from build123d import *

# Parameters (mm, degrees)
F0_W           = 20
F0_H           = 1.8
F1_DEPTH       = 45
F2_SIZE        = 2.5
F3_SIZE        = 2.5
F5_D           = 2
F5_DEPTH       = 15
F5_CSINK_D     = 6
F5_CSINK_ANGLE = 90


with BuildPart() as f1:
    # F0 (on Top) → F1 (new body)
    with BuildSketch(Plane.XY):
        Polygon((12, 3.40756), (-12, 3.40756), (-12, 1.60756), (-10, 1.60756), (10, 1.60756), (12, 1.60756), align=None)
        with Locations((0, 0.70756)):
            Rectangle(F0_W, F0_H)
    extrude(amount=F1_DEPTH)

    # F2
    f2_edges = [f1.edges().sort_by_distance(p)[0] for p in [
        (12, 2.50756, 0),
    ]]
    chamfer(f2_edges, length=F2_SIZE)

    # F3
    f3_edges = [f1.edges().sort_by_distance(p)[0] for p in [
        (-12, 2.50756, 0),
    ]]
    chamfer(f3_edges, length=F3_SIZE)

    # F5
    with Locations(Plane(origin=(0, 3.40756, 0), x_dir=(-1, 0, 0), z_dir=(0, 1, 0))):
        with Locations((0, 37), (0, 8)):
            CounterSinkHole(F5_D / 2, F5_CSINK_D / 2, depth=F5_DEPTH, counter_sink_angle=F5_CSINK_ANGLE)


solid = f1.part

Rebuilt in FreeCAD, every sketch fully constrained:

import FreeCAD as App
import Part
import Sketcher
from FreeCAD import Vector
Q = App.Units.Quantity


def edges_at(feature, points):
    """Names of the edges that pass closest to the given points."""
    edges = feature.Shape.Edges
    near = lambda p: min(range(len(edges)), key=lambda i: edges[i].distToShape(Part.Vertex(*p))[0])
    return sorted({f"Edge{near(p) + 1}" for p in points})


def add_polygon(sketch, points):
    """Adds a closed chain of lines whose ends are joined by coincident constraints."""
    first, n = sketch.GeometryCount, len(points)
    for a, b in zip(points, points[1:] + points[:1]):
        sketch.addGeometry(Part.LineSegment(App.Vector(*a, 0), App.Vector(*b, 0)), False)
    for i in range(n):
        sketch.addConstraint(Sketcher.Constraint("Coincident", first + i, 2, first + (i + 1) % n, 1))

doc = App.newDocument("Part")
body = doc.addObject("PartDesign::Body", "Body")

# Sketch on XY plane
sketch1 = body.newObject("Sketcher::SketchObject", "Sketch")
sketch1.AttachmentSupport = (doc.getObject("XY_Plane"), [""])
sketch1.MapMode = "FlatFace"
add_polygon(sketch1, [(12, 3.40756), (-12, 3.40756), (-12, 1.60756), (-10, 1.60756), (-10, -0.19244), (10, -0.19244), (10, 1.60756), (12, 1.60756)])  # lines 0-7
sketch1.addConstraint([
    Sketcher.Constraint("Horizontal", 0),
    Sketcher.Constraint("Vertical", 1),
    Sketcher.Constraint("Horizontal", 2),
    Sketcher.Constraint("Vertical", 3),
    Sketcher.Constraint("Horizontal", 4),
    Sketcher.Constraint("Vertical", 5),
    Sketcher.Constraint("Horizontal", 6),
    Sketcher.Constraint("Vertical", 7),
    Sketcher.Constraint("Symmetric", 2, 2, 5, 2, -2),
    Sketcher.Constraint("Equal", 2, 6),
    Sketcher.Constraint("Equal", 1, 3),
    Sketcher.Constraint("DistanceX", 0, 2, 0, 1, Q("24 mm")),
    Sketcher.Constraint("DistanceX", 2, 1, 2, 2, Q("2 mm")),
    Sketcher.Constraint("DistanceY", 1, 2, 1, 1, Q("1.8 mm")),
    Sketcher.Constraint("DistanceY", -1, 1, 0, 2, Q("3.40756 mm")),
])
pad1 = body.newObject("PartDesign::Pad", "Pad")
pad1.Profile = sketch1
pad1.Length = 45
doc.recompute()

chamfer = body.newObject("PartDesign::Chamfer", "Chamfer")
chamfer.Base = (pad1, edges_at(pad1, [(12, 2.508, 0)]))
chamfer.Size = 2.5
doc.recompute()

chamfer2 = body.newObject("PartDesign::Chamfer", "Chamfer001")
chamfer2.Base = (chamfer, edges_at(chamfer, [(-12, 2.508, 0)]))
chamfer2.Size = 2.5

# Sketch on XZ plane
sketch2 = body.newObject("Sketcher::SketchObject", "Sketch001")
sketch2.AttachmentSupport = (doc.getObject("XZ_Plane"), [""])
sketch2.MapMode = "FlatFace"
sketch2.AttachmentOffset = App.Placement(Vector(0, 0, -3.40756), App.Rotation())
sketch2.addGeometry([
    Part.Circle(Vector(0, 37, 0), Vector(0, 0, 1), 1),
    Part.Circle(Vector(0, 8, 0), Vector(0, 0, 1), 1),
], False)
sketch2.addConstraint([
    Sketcher.Constraint("Equal", 0, 1),
    Sketcher.Constraint("PointOnObject", 0, 3, -2),
    Sketcher.Constraint("PointOnObject", 1, 3, -2),
    Sketcher.Constraint("Diameter", 0, Q("2 mm")),
    Sketcher.Constraint("DistanceY", -1, 1, 0, 3, Q("37 mm")),
    Sketcher.Constraint("DistanceY", -1, 1, 1, 3, Q("8 mm")),
])
doc.recompute()
hole = body.newObject("PartDesign::Hole", "Hole")
hole.Profile = sketch2
hole.ThreadType = "None"
hole.Diameter = 2
hole.DepthType = "Dimension"
hole.Depth = 15
hole.DrillPoint = "Flat"
hole.HoleCutType = "Countersink"
hole.HoleCutDiameter = 6
hole.HoleCutCountersinkAngle = 90
hole.Reversed = True

doc.recompute()
